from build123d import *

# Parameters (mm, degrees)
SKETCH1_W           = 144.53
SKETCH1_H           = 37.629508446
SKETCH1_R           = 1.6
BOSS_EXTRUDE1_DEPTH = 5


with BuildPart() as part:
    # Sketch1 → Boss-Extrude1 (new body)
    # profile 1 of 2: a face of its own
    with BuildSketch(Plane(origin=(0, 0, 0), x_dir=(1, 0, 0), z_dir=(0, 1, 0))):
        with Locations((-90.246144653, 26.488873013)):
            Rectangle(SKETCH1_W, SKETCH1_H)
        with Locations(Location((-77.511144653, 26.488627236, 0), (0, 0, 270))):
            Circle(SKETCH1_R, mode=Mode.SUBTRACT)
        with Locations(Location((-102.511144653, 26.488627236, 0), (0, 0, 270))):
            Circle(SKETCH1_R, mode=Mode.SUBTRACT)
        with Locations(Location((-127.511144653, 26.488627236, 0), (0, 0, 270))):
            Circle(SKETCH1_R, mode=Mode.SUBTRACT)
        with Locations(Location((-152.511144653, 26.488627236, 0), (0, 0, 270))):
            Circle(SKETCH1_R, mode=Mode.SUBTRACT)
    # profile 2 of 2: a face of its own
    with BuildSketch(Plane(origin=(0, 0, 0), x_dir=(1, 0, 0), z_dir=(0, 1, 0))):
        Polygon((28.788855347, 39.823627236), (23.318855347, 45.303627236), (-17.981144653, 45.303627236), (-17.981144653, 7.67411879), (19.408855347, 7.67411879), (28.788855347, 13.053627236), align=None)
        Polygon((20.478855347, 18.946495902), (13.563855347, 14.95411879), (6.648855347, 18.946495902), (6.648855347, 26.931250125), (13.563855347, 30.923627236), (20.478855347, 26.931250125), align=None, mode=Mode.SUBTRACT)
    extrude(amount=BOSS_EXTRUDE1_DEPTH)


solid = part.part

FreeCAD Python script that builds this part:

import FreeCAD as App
import Part
import Sketcher
Q = App.Units.Quantity


def add_polygon(sketch, points):
    """Adds a closed chain of lines whose ends are joined by coincident constraints."""
    first, n = sketch.GeometryCount, len(points)
    for a, b in zip(points, points[1:] + points[:1]):
        sketch.addGeometry(Part.LineSegment(App.Vector(*a, 0), App.Vector(*b, 0)), False)
    for i in range(n):
        sketch.addConstraint(Sketcher.Constraint("Coincident", first + i, 2, first + (i + 1) % n, 1))

doc = App.newDocument("Part")
body = doc.addObject("PartDesign::Body", "Body")

sketch1 = body.newObject("Sketcher::SketchObject", "Sketch")
sketch1.AttachmentSupport = (doc.getObject("XZ_Plane"), [""])
sketch1.MapMode = "FlatFace"
add_polygon(sketch1, [(-162.511145, -45.303627), (-162.511145, -7.674119), (19.408855, -7.674119), (28.788855, -13.053627), (28.788855, -39.823627), (23.318855, -45.303627)])
sketch1.addGeometry(Part.Circle(App.Vector(-152.511145, -26.488627, 0), App.Vector(0, 0, 1), 1.6), False)
sketch1.addGeometry(Part.Circle(App.Vector(-127.511145, -26.488627, 0), App.Vector(0, 0, 1), 1.6), False)
sketch1.addGeometry(Part.Circle(App.Vector(-102.511145, -26.488627, 0), App.Vector(0, 0, 1), 1.6), False)
sketch1.addGeometry(Part.Circle(App.Vector(-77.511145, -26.488627, 0), App.Vector(0, 0, 1), 1.6), False)
add_polygon(sketch1, [(20.478855, -18.946496), (13.563855, -14.954119), (6.648855, -18.946496), (6.648855, -26.93125), (13.563855, -30.923627), (20.478855, -26.93125)])
sketch1.addConstraint([
    Sketcher.Constraint("Vertical", 0),
    Sketcher.Constraint("Horizontal", 1),
    Sketcher.Constraint("Vertical", 3),
    Sketcher.Constraint("Horizontal", 5),
    Sketcher.Constraint("Vertical", 12),
    Sketcher.Constraint("Vertical", 15),
    Sketcher.Constraint("Equal", 6, 7),
    Sketcher.Constraint("Equal", 7, 8),
    Sketcher.Constraint("Equal", 8, 9),
    Sketcher.Constraint("Parallel", 10, 13),
    Sketcher.Constraint("Parallel", 11, 14),
    Sketcher.Constraint("Horizontal", 6, 3, 7, 3),
    Sketcher.Constraint("Horizontal", 7, 3, 8, 3),
    Sketcher.Constraint("Horizontal", 8, 3, 9, 3),
    Sketcher.Constraint("Horizontal", 12, 2, 14, 2),
    Sketcher.Constraint("Horizontal", 11, 2, 15, 2),
    Sketcher.Constraint("Vertical", 10, 2, 13, 2),
    Sketcher.Constraint("Diameter", 6, 3.2),
    Sketcher.Constraint("Angle", 10, Q("150 deg")),
    Sketcher.Constraint("DistanceX", 6, 3, 7, 3, 25.0),
    Sketcher.Constraint("DistanceX", 7, 3, 8, 3, 25.0),
    Sketcher.Constraint("DistanceX", 8, 3, 9, 3, 25.0),
    Sketcher.Constraint("DistanceX", 0, 2, 6, 3, 10.0),
    Sketcher.Constraint("DistanceX", 1, 1, 1, 2, 181.92),
    Sketcher.Constraint("DistanceX", 5, 2, 5, 1, 185.83),
    Sketcher.Constraint("DistanceY", 3, 2, 3, 1, 26.77),
    Sketcher.Constraint("DistanceX", 9, 3, 2, 2, 106.3),
    Sketcher.Constraint("DistanceY", 3, 2, 13, 2, 8.9),
    Sketcher.Constraint("DistanceY", 4, 2, 3, 2, 5.48),
    Sketcher.Constraint("DistanceY", 10, 2, 1, 2, 7.28),
    Sketcher.Constraint("DistanceX", 11, 2, 1, 2, 12.76),
    Sketcher.Constraint("DistanceX", 12, 2, 14, 2, 13.83),
    Sketcher.Constraint("DistanceY", 9, 3, 2, 2, 13.435),
    Sketcher.Constraint("DistanceY", 0, 1, 0, 2, 37.629508),
    Sketcher.Constraint("DistanceY", 0, 2, -1, 1, 7.674119),
    Sketcher.Constraint("DistanceX", 6, 3, -1, 1, 152.511145),
])
pad1 = body.newObject("PartDesign::Pad", "Pad")
pad1.Profile = sketch1
pad1.Length = 5
pad1.Reversed = True

doc.recompute()
